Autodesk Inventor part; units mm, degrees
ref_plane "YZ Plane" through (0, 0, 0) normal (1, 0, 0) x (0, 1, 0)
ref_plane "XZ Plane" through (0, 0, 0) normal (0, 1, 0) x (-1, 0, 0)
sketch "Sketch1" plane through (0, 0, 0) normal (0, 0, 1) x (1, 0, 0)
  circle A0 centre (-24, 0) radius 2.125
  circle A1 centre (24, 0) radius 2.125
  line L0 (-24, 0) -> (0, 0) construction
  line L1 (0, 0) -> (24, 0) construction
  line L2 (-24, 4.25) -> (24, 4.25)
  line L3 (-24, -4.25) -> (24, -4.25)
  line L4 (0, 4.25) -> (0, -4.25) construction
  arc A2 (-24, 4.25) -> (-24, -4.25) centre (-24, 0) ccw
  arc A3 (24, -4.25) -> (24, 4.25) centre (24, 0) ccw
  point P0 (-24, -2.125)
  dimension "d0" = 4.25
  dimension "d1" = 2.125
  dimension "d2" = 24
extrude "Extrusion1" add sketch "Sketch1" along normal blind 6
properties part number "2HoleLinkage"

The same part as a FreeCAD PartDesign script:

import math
import FreeCAD as App
import Part
import Sketcher
Q = App.Units.Quantity

doc = App.newDocument("Part")
body = doc.addObject("PartDesign::Body", "Body")

# Sketch on XY plane
sketch1 = body.newObject("Sketcher::SketchObject", "Sketch")
sketch1.AttachmentSupport = (doc.getObject("XY_Plane"), [""])
sketch1.MapMode = "FlatFace"
sketch1.addGeometry([
    Part.LineSegment(App.Vector(24, 4.2, 0), App.Vector(-24, 4.2, 0)),  # 0
    Part.ArcOfCircle(Part.Circle(App.Vector(-24, 0, 0), App.Vector(0, 0, 1), 4.2), math.radians(90), math.radians(270)),  # 1
    Part.LineSegment(App.Vector(-24, -4.2, 0), App.Vector(24, -4.2, 0)),  # 2
    Part.ArcOfCircle(Part.Circle(App.Vector(24, 0, 0), App.Vector(0, 0, 1), 4.2), math.radians(-90), math.radians(90)),  # 3
    Part.Circle(App.Vector(-24, 0, 0), App.Vector(0, 0, 1), 2.1),  # 4
    Part.Circle(App.Vector(24, 0, 0), App.Vector(0, 0, 1), 2.1),  # 5
], False)
sketch1.addConstraint([
    Sketcher.Constraint("Tangent", 0, 2, 1, 1),
    Sketcher.Constraint("Tangent", 1, 2, 2, 1),
    Sketcher.Constraint("Tangent", 2, 2, 3, 1),
    Sketcher.Constraint("Tangent", 3, 2, 0, 1),
    Sketcher.Constraint("Horizontal", 0),
    Sketcher.Constraint("Horizontal", 2),
    Sketcher.Constraint("Coincident", 4, 3, 1, 3),
    Sketcher.Constraint("Coincident", 5, 3, 3, 3),
    Sketcher.Constraint("Equal", 4, 5),
    Sketcher.Constraint("Symmetric", 1, 3, 3, 3, -1, 1),
    Sketcher.Constraint("Diameter", 4, Q("4.25 mm")),
    Sketcher.Constraint("Radius", 1, Q("4.25 mm")),
    Sketcher.Constraint("DistanceX", 1, 3, -1, 1, Q("24 mm")),
])
pad1 = body.newObject("PartDesign::Pad", "Pad")
pad1.Profile = sketch1
pad1.Length = 6

doc.recompute()
